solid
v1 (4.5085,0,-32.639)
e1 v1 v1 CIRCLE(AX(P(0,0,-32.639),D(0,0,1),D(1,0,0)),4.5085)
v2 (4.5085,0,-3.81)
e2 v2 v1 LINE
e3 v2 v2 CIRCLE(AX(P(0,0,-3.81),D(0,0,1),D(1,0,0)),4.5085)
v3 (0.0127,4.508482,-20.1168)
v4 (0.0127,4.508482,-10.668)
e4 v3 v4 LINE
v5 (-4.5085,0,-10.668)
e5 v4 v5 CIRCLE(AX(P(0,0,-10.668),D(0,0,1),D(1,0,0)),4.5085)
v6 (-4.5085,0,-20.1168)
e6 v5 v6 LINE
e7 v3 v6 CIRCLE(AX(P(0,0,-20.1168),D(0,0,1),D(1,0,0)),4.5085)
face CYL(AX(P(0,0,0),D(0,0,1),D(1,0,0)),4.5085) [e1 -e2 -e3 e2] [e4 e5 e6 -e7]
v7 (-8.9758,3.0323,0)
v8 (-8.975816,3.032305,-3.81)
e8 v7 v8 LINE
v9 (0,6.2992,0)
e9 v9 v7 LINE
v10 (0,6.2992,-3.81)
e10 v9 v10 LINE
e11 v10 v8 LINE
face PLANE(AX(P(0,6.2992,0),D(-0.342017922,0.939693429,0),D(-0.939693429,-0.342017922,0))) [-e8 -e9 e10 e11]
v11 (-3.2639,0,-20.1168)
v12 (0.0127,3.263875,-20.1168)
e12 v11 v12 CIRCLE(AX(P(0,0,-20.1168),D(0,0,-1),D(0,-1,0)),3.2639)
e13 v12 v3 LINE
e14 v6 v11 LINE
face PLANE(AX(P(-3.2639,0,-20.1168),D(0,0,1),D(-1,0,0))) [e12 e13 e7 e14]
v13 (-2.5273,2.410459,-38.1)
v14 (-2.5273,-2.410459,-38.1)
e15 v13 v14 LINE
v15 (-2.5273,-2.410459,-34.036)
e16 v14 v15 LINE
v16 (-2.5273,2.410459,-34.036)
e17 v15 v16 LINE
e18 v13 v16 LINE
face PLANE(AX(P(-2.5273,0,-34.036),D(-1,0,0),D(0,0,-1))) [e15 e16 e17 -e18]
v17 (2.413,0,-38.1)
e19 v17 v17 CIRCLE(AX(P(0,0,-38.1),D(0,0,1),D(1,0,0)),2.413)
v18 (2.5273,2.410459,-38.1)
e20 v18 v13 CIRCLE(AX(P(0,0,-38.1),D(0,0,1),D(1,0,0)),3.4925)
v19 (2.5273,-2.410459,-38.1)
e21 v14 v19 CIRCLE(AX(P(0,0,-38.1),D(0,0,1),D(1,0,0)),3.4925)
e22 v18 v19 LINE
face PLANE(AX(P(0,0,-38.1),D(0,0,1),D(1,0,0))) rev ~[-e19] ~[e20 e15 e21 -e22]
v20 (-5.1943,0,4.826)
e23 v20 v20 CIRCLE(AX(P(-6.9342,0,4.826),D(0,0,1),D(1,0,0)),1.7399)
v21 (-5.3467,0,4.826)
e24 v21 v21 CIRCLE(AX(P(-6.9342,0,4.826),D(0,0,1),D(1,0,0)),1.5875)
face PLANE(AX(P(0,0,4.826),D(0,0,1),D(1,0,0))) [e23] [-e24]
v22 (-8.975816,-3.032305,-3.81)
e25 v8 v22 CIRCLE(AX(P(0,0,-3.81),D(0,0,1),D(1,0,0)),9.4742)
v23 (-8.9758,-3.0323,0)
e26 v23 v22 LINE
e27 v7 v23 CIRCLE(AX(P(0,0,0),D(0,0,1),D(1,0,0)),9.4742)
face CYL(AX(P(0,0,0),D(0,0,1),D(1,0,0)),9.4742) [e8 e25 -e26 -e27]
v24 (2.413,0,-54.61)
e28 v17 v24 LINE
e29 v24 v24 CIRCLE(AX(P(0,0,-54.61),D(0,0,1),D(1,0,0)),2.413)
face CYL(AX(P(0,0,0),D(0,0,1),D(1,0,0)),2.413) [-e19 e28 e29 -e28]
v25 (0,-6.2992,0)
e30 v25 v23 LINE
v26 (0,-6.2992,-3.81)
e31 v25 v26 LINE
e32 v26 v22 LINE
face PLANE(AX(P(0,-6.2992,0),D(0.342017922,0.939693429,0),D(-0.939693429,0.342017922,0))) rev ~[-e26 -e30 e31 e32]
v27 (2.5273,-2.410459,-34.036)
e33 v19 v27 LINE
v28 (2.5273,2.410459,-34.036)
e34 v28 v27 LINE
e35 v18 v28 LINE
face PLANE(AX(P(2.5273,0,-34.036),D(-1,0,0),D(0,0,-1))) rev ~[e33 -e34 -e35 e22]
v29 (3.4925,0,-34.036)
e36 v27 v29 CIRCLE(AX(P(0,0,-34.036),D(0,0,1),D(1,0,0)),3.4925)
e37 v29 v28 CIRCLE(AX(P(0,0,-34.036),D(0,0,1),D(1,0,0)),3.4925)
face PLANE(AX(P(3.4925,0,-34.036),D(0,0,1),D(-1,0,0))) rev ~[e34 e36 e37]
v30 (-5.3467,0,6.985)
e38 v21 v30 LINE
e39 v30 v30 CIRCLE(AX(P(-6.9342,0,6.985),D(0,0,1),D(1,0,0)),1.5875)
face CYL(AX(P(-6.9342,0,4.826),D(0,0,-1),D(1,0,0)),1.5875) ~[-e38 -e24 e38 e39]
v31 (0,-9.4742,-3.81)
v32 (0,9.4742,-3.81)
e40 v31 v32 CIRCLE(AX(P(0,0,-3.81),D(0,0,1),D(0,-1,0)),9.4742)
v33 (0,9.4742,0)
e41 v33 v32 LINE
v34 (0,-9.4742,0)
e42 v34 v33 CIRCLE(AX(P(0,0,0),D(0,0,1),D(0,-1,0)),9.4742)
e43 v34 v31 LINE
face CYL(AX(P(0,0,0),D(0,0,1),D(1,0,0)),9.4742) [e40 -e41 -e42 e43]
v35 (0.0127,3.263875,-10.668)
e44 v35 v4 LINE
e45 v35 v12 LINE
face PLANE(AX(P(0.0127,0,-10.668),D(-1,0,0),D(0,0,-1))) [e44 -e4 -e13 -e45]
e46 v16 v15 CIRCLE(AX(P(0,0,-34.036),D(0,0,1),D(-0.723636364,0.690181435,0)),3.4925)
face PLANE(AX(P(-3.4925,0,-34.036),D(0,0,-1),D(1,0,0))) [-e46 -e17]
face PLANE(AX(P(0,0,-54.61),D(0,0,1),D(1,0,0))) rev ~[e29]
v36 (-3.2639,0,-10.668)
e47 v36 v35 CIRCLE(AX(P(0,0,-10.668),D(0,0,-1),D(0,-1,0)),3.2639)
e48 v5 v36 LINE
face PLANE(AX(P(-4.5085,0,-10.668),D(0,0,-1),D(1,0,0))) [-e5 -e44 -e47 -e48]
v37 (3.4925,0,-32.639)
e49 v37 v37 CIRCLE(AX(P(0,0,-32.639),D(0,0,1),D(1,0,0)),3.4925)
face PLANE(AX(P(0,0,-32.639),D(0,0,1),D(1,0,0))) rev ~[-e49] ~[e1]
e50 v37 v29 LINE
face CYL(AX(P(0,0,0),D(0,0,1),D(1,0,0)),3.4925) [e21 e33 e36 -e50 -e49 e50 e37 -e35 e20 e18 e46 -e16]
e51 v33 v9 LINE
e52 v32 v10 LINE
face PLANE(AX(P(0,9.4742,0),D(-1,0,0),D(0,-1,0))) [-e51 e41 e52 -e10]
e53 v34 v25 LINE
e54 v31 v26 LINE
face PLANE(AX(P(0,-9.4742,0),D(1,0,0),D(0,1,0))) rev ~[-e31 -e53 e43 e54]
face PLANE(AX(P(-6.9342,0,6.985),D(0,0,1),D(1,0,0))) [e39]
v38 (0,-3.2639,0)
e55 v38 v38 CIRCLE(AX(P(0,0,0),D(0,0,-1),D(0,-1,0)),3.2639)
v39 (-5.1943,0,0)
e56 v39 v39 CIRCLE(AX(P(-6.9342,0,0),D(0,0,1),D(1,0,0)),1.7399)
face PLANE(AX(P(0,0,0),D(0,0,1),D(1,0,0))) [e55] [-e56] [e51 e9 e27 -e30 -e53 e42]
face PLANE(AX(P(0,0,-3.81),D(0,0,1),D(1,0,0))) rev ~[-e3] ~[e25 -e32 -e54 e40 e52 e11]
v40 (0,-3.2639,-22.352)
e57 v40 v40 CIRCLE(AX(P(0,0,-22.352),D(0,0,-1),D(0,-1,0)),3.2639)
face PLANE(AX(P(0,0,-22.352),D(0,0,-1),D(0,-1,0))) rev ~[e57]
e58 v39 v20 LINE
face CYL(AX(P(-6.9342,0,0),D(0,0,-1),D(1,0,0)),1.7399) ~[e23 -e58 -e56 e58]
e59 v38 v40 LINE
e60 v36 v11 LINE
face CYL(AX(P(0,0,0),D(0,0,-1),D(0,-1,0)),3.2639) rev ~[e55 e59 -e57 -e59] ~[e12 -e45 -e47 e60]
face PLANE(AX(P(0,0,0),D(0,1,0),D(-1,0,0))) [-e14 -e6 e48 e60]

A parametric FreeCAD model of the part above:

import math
import FreeCAD as App
import Part
import Sketcher
Q = App.Units.Quantity

doc = App.newDocument("Part")
params = doc.addObject("Spreadsheet::Sheet", "Params")
for row, (alias, value) in enumerate([
    ("sketch1_diameter", "0.746 in"),
    ("pad1_length", "0.15 in"),
    ("sketch2_diameter", "0.355 in"),
    ("pad2_length", "1.285 in"),
    ("sketch3_diameter", "0.275 in"),
    ("pad3_length", "1.5 in"),
    ("sketch4_diameter", "0.19 in"),
    ("pad4_length", "2.15 in"),
    ("sketch5_diameter", "0.257 in"),
    ("hole_diameter", "0.257 in"),
    ("hole_depth", "0.88 in"),
    ("sketch6_width", "0.038 in"),
    ("sketch6_height", "0.16 in"),
    ("sketch7_width", "0.178 in"),
    ("sketch7_height", "0.372 in"),
    ("sketch8_diameter", "0.137 in"),
    ("pad5_length", "0.19 in"),
    ("sketch9_diameter", "0.125 in"),
    ("pad6_length", "0.085 in"),
    ("sketch10_height", "0.125 in"),
    ("sketch10_radius", "0.373 in"),
], start=1):
    params.set(f"A{row}", alias)
    params.set(f"B{row}", "=" + value)
    params.setAlias(f"B{row}", alias)

body = doc.addObject("PartDesign::Body", "Body")

sketch1 = body.newObject("Sketcher::SketchObject", "Sketch")
sketch1.AttachmentSupport = (doc.getObject("XY_Plane"), [""])
sketch1.MapMode = "FlatFace"
sketch1.addGeometry(Part.Circle(App.Vector(0, 0, 0), App.Vector(0, 0, 1), 9), False)
sketch1.addConstraint(Sketcher.Constraint("Coincident", 0, 3, -1, 1))
sketch1.addConstraint(Sketcher.Constraint("Diameter", 0, Q("0.746 in")))
sketch1.setExpression("Constraints[1]", "Params.sketch1_diameter")
pad1 = body.newObject("PartDesign::Pad", "Pad")
pad1.Profile = sketch1
pad1.setExpression("Length", "Params.pad1_length")
pad1.Reversed = True

sketch2 = body.newObject("Sketcher::SketchObject", "Sketch001")
sketch2.AttachmentSupport = (doc.getObject("XY_Plane"), [""])
sketch2.MapMode = "FlatFace"
sketch2.addGeometry(Part.Circle(App.Vector(0, 0, 0), App.Vector(0, 0, 1), 4.5), False)
sketch2.addConstraint(Sketcher.Constraint("Coincident", 0, 3, -1, 1))
sketch2.addConstraint(Sketcher.Constraint("Diameter", 0, Q("0.355 in")))
sketch2.setExpression("Constraints[1]", "Params.sketch2_diameter")
pad2 = body.newObject("PartDesign::Pad", "Pad001")
pad2.Profile = sketch2
pad2.setExpression("Length", "Params.pad2_length")
pad2.Reversed = True

sketch3 = body.newObject("Sketcher::SketchObject", "Sketch002")
sketch3.AttachmentSupport = (doc.getObject("XY_Plane"), [""])
sketch3.MapMode = "FlatFace"
sketch3.addGeometry(Part.Circle(App.Vector(0, 0, 0), App.Vector(0, 0, 1), 3.5), False)
sketch3.addConstraint(Sketcher.Constraint("Coincident", 0, 3, -1, 1))
sketch3.addConstraint(Sketcher.Constraint("Diameter", 0, Q("0.275 in")))
sketch3.setExpression("Constraints[1]", "Params.sketch3_diameter")
pad3 = body.newObject("PartDesign::Pad", "Pad002")
pad3.Profile = sketch3
pad3.setExpression("Length", "Params.pad3_length")
pad3.Reversed = True

sketch4 = body.newObject("Sketcher::SketchObject", "Sketch003")
sketch4.AttachmentSupport = (doc.getObject("XY_Plane"), [""])
sketch4.MapMode = "FlatFace"
sketch4.addGeometry(Part.Circle(App.Vector(0, 0, 0), App.Vector(0, 0, 1), 2.4), False)
sketch4.addConstraint(Sketcher.Constraint("Coincident", 0, 3, -1, 1))
sketch4.addConstraint(Sketcher.Constraint("Diameter", 0, Q("0.19 in")))
sketch4.setExpression("Constraints[1]", "Params.sketch4_diameter")
pad4 = body.newObject("PartDesign::Pad", "Pad003")
pad4.Profile = sketch4
pad4.setExpression("Length", "Params.pad4_length")
pad4.Reversed = True

sketch5 = body.newObject("Sketcher::SketchObject", "Sketch004")
sketch5.AttachmentSupport = (doc.getObject("XY_Plane"), [""])
sketch5.MapMode = "FlatFace"
sketch5.addGeometry(Part.Circle(App.Vector(0, 0, 0), App.Vector(0, 0, 1), 3.3), False)
sketch5.addConstraint(Sketcher.Constraint("Coincident", 0, 3, -1, 1))
sketch5.addConstraint(Sketcher.Constraint("Diameter", 0, Q("0.257 in")))
sketch5.setExpression("Constraints[1]", "Params.sketch5_diameter")
doc.recompute()
hole = body.newObject("PartDesign::Hole", "Hole")
hole.Profile = sketch5
hole.ThreadType = "None"
hole.setExpression("Diameter", "Params.hole_diameter")
hole.DepthType = "Dimension"
hole.setExpression("Depth", "Params.hole_depth")
hole.DrillPoint = "Flat"

sketch6 = body.newObject("Sketcher::SketchObject", "Sketch005")
sketch6.AttachmentSupport = (doc.getObject("XZ_Plane"), [""])
sketch6.MapMode = "FlatFace"
sketch6.addGeometry(Part.LineSegment(App.Vector(2.5, -34, 0), App.Vector(3.5, -34, 0)), False)
sketch6.addGeometry(Part.LineSegment(App.Vector(3.5, -34, 0), App.Vector(3.5, -38.1, 0)), False)
sketch6.addGeometry(Part.LineSegment(App.Vector(3.5, -38.1, 0), App.Vector(2.5, -38.1, 0)), False)
sketch6.addGeometry(Part.LineSegment(App.Vector(2.5, -38.1, 0), App.Vector(2.5, -34, 0)), False)
sketch6.addGeometry(Part.LineSegment(App.Vector(-3.5, -38.1, 0), App.Vector(-3.5, -34, 0)), False)
sketch6.addGeometry(Part.LineSegment(App.Vector(-3.5, -34, 0), App.Vector(-2.5, -34, 0)), False)
sketch6.addGeometry(Part.LineSegment(App.Vector(-2.5, -34, 0), App.Vector(-2.5, -38.1, 0)), False)
sketch6.addGeometry(Part.LineSegment(App.Vector(-2.5, -38.1, 0), App.Vector(-3.5, -38.1, 0)), False)
sketch6.addConstraint(Sketcher.Constraint("Coincident", 0, 2, 1, 1))
sketch6.addConstraint(Sketcher.Constraint("Coincident", 1, 2, 2, 1))
sketch6.addConstraint(Sketcher.Constraint("Coincident", 2, 2, 3, 1))
sketch6.addConstraint(Sketcher.Constraint("Coincident", 3, 2, 0, 1))
sketch6.addConstraint(Sketcher.Constraint("Coincident", 4, 2, 5, 1))
sketch6.addConstraint(Sketcher.Constraint("Coincident", 5, 2, 6, 1))
sketch6.addConstraint(Sketcher.Constraint("Coincident", 6, 2, 7, 1))
sketch6.addConstraint(Sketcher.Constraint("Coincident", 7, 2, 4, 1))
sketch6.addConstraint(Sketcher.Constraint("Horizontal", 0))
sketch6.addConstraint(Sketcher.Constraint("Vertical", 1))
sketch6.addConstraint(Sketcher.Constraint("Horizontal", 2))
sketch6.addConstraint(Sketcher.Constraint("Vertical", 3))
sketch6.addConstraint(Sketcher.Constraint("Vertical", 4))
sketch6.addConstraint(Sketcher.Constraint("Horizontal", 5))
sketch6.addConstraint(Sketcher.Constraint("Vertical", 6))
sketch6.addConstraint(Sketcher.Constraint("Horizontal", 7))
sketch6.addConstraint(Sketcher.Constraint("Symmetric", 0, 2, 4, 2, -2))
sketch6.addConstraint(Sketcher.Constraint("Symmetric", 2, 2, 6, 2, -2))
sketch6.addConstraint(Sketcher.Constraint("DistanceX", 0, 1, 0, 2, Q("0.038 in")))
sketch6.addConstraint(Sketcher.Constraint("DistanceY", 1, 2, 1, 1, Q("0.16 in")))
sketch6.addConstraint(Sketcher.Constraint("DistanceY", 1, 2, -1, 1, Q("1.5 in")))
sketch6.addConstraint(Sketcher.Constraint("DistanceX", 4, 2, 3, 2, Q("0.237 in")))
sketch6.setExpression("Constraints[18]", "Params.sketch6_width")
sketch6.setExpression("Constraints[19]", "Params.sketch6_height")
pocket1 = body.newObject("PartDesign::Pocket", "Pocket")
pocket1.Profile = sketch6
pocket1.Type = "ThroughAll"
pocket1.Midplane = True

sketch7 = body.newObject("Sketcher::SketchObject", "Sketch006")
sketch7.AttachmentSupport = (doc.getObject("XZ_Plane"), [""])
sketch7.MapMode = "FlatFace"
sketch7.addGeometry(Part.LineSegment(App.Vector(-4.5, -10.7, 0), App.Vector(0, -10.7, 0)), False)
sketch7.addGeometry(Part.LineSegment(App.Vector(0, -10.7, 0), App.Vector(0, -20.1, 0)), False)
sketch7.addGeometry(Part.LineSegment(App.Vector(0, -20.1, 0), App.Vector(-4.5, -20.1, 0)), False)
sketch7.addGeometry(Part.LineSegment(App.Vector(-4.5, -20.1, 0), App.Vector(-4.5, -10.7, 0)), False)
sketch7.addConstraint(Sketcher.Constraint("Coincident", 0, 2, 1, 1))
sketch7.addConstraint(Sketcher.Constraint("Coincident", 1, 2, 2, 1))
sketch7.addConstraint(Sketcher.Constraint("Coincident", 2, 2, 3, 1))
sketch7.addConstraint(Sketcher.Constraint("Coincident", 3, 2, 0, 1))
sketch7.addConstraint(Sketcher.Constraint("Horizontal", 0))
sketch7.addConstraint(Sketcher.Constraint("Vertical", 1))
sketch7.addConstraint(Sketcher.Constraint("Horizontal", 2))
sketch7.addConstraint(Sketcher.Constraint("Vertical", 3))
sketch7.addConstraint(Sketcher.Constraint("DistanceX", 0, 1, 0, 2, Q("0.178 in")))
sketch7.addConstraint(Sketcher.Constraint("DistanceY", 1, 2, 1, 1, Q("0.372 in")))
sketch7.addConstraint(Sketcher.Constraint("DistanceY", 0, 2, -1, 1, Q("0.42 in")))
sketch7.addConstraint(Sketcher.Constraint("DistanceX", -1, 1, 0, 2, Q("0.0005 in")))
sketch7.setExpression("Constraints[8]", "Params.sketch7_width")
sketch7.setExpression("Constraints[9]", "Params.sketch7_height")
pocket2 = body.newObject("PartDesign::Pocket", "Pocket001")
pocket2.Profile = sketch7
pocket2.Type = "ThroughAll"

sketch8 = body.newObject("Sketcher::SketchObject", "Sketch007")
sketch8.AttachmentSupport = (doc.getObject("XY_Plane"), [""])
sketch8.MapMode = "FlatFace"
sketch8.addGeometry(Part.Circle(App.Vector(-6.9, 0, 0), App.Vector(0, 0, 1), 1.7), False)
sketch8.addConstraint(Sketcher.Constraint("PointOnObject", 0, 3, -1))
sketch8.addConstraint(Sketcher.Constraint("Diameter", 0, Q("0.137 in")))
sketch8.addConstraint(Sketcher.Constraint("DistanceX", 0, 3, -1, 1, Q("0.273 in")))
sketch8.setExpression("Constraints[1]", "Params.sketch8_diameter")
pad5 = body.newObject("PartDesign::Pad", "Pad004")
pad5.Profile = sketch8
pad5.setExpression("Length", "Params.pad5_length")

sketch9 = body.newObject("Sketcher::SketchObject", "Sketch008")
sketch9.AttachmentSupport = (doc.getObject("XY_Plane"), [""])
sketch9.MapMode = "FlatFace"
sketch9.AttachmentOffset = App.Placement(App.Vector(0, 0, 0.19 * 25.4), App.Rotation())
sketch9.addGeometry(Part.Circle(App.Vector(-6.9, 0, 0), App.Vector(0, 0, 1), 1.6), False)
sketch9.addConstraint(Sketcher.Constraint("PointOnObject", 0, 3, -1))
sketch9.addConstraint(Sketcher.Constraint("Diameter", 0, Q("0.125 in")))
sketch9.addConstraint(Sketcher.Constraint("DistanceX", 0, 3, -1, 1, Q("0.273 in")))
sketch9.setExpression("Constraints[1]", "Params.sketch9_diameter")
pad6 = body.newObject("PartDesign::Pad", "Pad005")
pad6.Profile = sketch9
pad6.setExpression("Length", "Params.pad6_length")

sketch10 = body.newObject("Sketcher::SketchObject", "Sketch009")
sketch10.AttachmentSupport = (doc.getObject("XY_Plane"), [""])
sketch10.MapMode = "FlatFace"
sketch10.addGeometry(Part.LineSegment(App.Vector(0, 6.3, 0), App.Vector(0, 9.5, 0)), False)
sketch10.addGeometry(Part.ArcOfCircle(Part.Circle(App.Vector(0, 0, 0), App.Vector(0, 0, 1), 9.5), math.radians(90), math.radians(161)), False)
sketch10.addGeometry(Part.LineSegment(App.Vector(-9, 3, 0), App.Vector(0, 6.3, 0)), False)
sketch10.addGeometry(Part.ArcOfCircle(Part.Circle(App.Vector(0, 0, 0), App.Vector(0, 0, 1), 9.5), math.radians(-161), math.radians(-90)), False)
sketch10.addGeometry(Part.LineSegment(App.Vector(0, -9.5, 0), App.Vector(0, -6.3, 0)), False)
sketch10.addGeometry(Part.LineSegment(App.Vector(0, -6.3, 0), App.Vector(-9, -3, 0)), False)
sketch10.addConstraint(Sketcher.Constraint("Coincident", 0, 2, 1, 1))
sketch10.addConstraint(Sketcher.Constraint("Coincident", 1, 2, 2, 1))
sketch10.addConstraint(Sketcher.Constraint("Coincident", 2, 2, 0, 1))
sketch10.addConstraint(Sketcher.Constraint("Coincident", 3, 2, 4, 1))
sketch10.addConstraint(Sketcher.Constraint("Coincident", 4, 2, 5, 1))
sketch10.addConstraint(Sketcher.Constraint("Coincident", 5, 2, 3, 1))
sketch10.addConstraint(Sketcher.Constraint("Vertical", 0))
sketch10.addConstraint(Sketcher.Constraint("Vertical", 4))
sketch10.addConstraint(Sketcher.Constraint("Coincident", 1, 3, -1, 1))
sketch10.addConstraint(Sketcher.Constraint("Coincident", 3, 3, -1, 1))
sketch10.addConstraint(Sketcher.Constraint("Equal", 1, 3))
sketch10.addConstraint(Sketcher.Constraint("Symmetric", 2, 2, 4, 2, -1, 1))
sketch10.addConstraint(Sketcher.Constraint("PointOnObject", 0, 2, -2))
sketch10.addConstraint(Sketcher.Constraint("Vertical", 1, 2, 5, 2))
sketch10.addConstraint(Sketcher.Constraint("DistanceY", 0, 1, 0, 2, Q("0.125 in")))
sketch10.addConstraint(Sketcher.Constraint("Angle", 2, Q("19.9999 deg")))
sketch10.addConstraint(Sketcher.Constraint("Radius", 1, Q("0.373 in")))
sketch10.setExpression("Constraints[14]", "Params.sketch10_height")
sketch10.setExpression("Constraints[16]", "Params.sketch10_radius")
pocket3 = body.newObject("PartDesign::Pocket", "Pocket002")
pocket3.Profile = sketch10
pocket3.Type = "ThroughAll"

doc.recompute()
